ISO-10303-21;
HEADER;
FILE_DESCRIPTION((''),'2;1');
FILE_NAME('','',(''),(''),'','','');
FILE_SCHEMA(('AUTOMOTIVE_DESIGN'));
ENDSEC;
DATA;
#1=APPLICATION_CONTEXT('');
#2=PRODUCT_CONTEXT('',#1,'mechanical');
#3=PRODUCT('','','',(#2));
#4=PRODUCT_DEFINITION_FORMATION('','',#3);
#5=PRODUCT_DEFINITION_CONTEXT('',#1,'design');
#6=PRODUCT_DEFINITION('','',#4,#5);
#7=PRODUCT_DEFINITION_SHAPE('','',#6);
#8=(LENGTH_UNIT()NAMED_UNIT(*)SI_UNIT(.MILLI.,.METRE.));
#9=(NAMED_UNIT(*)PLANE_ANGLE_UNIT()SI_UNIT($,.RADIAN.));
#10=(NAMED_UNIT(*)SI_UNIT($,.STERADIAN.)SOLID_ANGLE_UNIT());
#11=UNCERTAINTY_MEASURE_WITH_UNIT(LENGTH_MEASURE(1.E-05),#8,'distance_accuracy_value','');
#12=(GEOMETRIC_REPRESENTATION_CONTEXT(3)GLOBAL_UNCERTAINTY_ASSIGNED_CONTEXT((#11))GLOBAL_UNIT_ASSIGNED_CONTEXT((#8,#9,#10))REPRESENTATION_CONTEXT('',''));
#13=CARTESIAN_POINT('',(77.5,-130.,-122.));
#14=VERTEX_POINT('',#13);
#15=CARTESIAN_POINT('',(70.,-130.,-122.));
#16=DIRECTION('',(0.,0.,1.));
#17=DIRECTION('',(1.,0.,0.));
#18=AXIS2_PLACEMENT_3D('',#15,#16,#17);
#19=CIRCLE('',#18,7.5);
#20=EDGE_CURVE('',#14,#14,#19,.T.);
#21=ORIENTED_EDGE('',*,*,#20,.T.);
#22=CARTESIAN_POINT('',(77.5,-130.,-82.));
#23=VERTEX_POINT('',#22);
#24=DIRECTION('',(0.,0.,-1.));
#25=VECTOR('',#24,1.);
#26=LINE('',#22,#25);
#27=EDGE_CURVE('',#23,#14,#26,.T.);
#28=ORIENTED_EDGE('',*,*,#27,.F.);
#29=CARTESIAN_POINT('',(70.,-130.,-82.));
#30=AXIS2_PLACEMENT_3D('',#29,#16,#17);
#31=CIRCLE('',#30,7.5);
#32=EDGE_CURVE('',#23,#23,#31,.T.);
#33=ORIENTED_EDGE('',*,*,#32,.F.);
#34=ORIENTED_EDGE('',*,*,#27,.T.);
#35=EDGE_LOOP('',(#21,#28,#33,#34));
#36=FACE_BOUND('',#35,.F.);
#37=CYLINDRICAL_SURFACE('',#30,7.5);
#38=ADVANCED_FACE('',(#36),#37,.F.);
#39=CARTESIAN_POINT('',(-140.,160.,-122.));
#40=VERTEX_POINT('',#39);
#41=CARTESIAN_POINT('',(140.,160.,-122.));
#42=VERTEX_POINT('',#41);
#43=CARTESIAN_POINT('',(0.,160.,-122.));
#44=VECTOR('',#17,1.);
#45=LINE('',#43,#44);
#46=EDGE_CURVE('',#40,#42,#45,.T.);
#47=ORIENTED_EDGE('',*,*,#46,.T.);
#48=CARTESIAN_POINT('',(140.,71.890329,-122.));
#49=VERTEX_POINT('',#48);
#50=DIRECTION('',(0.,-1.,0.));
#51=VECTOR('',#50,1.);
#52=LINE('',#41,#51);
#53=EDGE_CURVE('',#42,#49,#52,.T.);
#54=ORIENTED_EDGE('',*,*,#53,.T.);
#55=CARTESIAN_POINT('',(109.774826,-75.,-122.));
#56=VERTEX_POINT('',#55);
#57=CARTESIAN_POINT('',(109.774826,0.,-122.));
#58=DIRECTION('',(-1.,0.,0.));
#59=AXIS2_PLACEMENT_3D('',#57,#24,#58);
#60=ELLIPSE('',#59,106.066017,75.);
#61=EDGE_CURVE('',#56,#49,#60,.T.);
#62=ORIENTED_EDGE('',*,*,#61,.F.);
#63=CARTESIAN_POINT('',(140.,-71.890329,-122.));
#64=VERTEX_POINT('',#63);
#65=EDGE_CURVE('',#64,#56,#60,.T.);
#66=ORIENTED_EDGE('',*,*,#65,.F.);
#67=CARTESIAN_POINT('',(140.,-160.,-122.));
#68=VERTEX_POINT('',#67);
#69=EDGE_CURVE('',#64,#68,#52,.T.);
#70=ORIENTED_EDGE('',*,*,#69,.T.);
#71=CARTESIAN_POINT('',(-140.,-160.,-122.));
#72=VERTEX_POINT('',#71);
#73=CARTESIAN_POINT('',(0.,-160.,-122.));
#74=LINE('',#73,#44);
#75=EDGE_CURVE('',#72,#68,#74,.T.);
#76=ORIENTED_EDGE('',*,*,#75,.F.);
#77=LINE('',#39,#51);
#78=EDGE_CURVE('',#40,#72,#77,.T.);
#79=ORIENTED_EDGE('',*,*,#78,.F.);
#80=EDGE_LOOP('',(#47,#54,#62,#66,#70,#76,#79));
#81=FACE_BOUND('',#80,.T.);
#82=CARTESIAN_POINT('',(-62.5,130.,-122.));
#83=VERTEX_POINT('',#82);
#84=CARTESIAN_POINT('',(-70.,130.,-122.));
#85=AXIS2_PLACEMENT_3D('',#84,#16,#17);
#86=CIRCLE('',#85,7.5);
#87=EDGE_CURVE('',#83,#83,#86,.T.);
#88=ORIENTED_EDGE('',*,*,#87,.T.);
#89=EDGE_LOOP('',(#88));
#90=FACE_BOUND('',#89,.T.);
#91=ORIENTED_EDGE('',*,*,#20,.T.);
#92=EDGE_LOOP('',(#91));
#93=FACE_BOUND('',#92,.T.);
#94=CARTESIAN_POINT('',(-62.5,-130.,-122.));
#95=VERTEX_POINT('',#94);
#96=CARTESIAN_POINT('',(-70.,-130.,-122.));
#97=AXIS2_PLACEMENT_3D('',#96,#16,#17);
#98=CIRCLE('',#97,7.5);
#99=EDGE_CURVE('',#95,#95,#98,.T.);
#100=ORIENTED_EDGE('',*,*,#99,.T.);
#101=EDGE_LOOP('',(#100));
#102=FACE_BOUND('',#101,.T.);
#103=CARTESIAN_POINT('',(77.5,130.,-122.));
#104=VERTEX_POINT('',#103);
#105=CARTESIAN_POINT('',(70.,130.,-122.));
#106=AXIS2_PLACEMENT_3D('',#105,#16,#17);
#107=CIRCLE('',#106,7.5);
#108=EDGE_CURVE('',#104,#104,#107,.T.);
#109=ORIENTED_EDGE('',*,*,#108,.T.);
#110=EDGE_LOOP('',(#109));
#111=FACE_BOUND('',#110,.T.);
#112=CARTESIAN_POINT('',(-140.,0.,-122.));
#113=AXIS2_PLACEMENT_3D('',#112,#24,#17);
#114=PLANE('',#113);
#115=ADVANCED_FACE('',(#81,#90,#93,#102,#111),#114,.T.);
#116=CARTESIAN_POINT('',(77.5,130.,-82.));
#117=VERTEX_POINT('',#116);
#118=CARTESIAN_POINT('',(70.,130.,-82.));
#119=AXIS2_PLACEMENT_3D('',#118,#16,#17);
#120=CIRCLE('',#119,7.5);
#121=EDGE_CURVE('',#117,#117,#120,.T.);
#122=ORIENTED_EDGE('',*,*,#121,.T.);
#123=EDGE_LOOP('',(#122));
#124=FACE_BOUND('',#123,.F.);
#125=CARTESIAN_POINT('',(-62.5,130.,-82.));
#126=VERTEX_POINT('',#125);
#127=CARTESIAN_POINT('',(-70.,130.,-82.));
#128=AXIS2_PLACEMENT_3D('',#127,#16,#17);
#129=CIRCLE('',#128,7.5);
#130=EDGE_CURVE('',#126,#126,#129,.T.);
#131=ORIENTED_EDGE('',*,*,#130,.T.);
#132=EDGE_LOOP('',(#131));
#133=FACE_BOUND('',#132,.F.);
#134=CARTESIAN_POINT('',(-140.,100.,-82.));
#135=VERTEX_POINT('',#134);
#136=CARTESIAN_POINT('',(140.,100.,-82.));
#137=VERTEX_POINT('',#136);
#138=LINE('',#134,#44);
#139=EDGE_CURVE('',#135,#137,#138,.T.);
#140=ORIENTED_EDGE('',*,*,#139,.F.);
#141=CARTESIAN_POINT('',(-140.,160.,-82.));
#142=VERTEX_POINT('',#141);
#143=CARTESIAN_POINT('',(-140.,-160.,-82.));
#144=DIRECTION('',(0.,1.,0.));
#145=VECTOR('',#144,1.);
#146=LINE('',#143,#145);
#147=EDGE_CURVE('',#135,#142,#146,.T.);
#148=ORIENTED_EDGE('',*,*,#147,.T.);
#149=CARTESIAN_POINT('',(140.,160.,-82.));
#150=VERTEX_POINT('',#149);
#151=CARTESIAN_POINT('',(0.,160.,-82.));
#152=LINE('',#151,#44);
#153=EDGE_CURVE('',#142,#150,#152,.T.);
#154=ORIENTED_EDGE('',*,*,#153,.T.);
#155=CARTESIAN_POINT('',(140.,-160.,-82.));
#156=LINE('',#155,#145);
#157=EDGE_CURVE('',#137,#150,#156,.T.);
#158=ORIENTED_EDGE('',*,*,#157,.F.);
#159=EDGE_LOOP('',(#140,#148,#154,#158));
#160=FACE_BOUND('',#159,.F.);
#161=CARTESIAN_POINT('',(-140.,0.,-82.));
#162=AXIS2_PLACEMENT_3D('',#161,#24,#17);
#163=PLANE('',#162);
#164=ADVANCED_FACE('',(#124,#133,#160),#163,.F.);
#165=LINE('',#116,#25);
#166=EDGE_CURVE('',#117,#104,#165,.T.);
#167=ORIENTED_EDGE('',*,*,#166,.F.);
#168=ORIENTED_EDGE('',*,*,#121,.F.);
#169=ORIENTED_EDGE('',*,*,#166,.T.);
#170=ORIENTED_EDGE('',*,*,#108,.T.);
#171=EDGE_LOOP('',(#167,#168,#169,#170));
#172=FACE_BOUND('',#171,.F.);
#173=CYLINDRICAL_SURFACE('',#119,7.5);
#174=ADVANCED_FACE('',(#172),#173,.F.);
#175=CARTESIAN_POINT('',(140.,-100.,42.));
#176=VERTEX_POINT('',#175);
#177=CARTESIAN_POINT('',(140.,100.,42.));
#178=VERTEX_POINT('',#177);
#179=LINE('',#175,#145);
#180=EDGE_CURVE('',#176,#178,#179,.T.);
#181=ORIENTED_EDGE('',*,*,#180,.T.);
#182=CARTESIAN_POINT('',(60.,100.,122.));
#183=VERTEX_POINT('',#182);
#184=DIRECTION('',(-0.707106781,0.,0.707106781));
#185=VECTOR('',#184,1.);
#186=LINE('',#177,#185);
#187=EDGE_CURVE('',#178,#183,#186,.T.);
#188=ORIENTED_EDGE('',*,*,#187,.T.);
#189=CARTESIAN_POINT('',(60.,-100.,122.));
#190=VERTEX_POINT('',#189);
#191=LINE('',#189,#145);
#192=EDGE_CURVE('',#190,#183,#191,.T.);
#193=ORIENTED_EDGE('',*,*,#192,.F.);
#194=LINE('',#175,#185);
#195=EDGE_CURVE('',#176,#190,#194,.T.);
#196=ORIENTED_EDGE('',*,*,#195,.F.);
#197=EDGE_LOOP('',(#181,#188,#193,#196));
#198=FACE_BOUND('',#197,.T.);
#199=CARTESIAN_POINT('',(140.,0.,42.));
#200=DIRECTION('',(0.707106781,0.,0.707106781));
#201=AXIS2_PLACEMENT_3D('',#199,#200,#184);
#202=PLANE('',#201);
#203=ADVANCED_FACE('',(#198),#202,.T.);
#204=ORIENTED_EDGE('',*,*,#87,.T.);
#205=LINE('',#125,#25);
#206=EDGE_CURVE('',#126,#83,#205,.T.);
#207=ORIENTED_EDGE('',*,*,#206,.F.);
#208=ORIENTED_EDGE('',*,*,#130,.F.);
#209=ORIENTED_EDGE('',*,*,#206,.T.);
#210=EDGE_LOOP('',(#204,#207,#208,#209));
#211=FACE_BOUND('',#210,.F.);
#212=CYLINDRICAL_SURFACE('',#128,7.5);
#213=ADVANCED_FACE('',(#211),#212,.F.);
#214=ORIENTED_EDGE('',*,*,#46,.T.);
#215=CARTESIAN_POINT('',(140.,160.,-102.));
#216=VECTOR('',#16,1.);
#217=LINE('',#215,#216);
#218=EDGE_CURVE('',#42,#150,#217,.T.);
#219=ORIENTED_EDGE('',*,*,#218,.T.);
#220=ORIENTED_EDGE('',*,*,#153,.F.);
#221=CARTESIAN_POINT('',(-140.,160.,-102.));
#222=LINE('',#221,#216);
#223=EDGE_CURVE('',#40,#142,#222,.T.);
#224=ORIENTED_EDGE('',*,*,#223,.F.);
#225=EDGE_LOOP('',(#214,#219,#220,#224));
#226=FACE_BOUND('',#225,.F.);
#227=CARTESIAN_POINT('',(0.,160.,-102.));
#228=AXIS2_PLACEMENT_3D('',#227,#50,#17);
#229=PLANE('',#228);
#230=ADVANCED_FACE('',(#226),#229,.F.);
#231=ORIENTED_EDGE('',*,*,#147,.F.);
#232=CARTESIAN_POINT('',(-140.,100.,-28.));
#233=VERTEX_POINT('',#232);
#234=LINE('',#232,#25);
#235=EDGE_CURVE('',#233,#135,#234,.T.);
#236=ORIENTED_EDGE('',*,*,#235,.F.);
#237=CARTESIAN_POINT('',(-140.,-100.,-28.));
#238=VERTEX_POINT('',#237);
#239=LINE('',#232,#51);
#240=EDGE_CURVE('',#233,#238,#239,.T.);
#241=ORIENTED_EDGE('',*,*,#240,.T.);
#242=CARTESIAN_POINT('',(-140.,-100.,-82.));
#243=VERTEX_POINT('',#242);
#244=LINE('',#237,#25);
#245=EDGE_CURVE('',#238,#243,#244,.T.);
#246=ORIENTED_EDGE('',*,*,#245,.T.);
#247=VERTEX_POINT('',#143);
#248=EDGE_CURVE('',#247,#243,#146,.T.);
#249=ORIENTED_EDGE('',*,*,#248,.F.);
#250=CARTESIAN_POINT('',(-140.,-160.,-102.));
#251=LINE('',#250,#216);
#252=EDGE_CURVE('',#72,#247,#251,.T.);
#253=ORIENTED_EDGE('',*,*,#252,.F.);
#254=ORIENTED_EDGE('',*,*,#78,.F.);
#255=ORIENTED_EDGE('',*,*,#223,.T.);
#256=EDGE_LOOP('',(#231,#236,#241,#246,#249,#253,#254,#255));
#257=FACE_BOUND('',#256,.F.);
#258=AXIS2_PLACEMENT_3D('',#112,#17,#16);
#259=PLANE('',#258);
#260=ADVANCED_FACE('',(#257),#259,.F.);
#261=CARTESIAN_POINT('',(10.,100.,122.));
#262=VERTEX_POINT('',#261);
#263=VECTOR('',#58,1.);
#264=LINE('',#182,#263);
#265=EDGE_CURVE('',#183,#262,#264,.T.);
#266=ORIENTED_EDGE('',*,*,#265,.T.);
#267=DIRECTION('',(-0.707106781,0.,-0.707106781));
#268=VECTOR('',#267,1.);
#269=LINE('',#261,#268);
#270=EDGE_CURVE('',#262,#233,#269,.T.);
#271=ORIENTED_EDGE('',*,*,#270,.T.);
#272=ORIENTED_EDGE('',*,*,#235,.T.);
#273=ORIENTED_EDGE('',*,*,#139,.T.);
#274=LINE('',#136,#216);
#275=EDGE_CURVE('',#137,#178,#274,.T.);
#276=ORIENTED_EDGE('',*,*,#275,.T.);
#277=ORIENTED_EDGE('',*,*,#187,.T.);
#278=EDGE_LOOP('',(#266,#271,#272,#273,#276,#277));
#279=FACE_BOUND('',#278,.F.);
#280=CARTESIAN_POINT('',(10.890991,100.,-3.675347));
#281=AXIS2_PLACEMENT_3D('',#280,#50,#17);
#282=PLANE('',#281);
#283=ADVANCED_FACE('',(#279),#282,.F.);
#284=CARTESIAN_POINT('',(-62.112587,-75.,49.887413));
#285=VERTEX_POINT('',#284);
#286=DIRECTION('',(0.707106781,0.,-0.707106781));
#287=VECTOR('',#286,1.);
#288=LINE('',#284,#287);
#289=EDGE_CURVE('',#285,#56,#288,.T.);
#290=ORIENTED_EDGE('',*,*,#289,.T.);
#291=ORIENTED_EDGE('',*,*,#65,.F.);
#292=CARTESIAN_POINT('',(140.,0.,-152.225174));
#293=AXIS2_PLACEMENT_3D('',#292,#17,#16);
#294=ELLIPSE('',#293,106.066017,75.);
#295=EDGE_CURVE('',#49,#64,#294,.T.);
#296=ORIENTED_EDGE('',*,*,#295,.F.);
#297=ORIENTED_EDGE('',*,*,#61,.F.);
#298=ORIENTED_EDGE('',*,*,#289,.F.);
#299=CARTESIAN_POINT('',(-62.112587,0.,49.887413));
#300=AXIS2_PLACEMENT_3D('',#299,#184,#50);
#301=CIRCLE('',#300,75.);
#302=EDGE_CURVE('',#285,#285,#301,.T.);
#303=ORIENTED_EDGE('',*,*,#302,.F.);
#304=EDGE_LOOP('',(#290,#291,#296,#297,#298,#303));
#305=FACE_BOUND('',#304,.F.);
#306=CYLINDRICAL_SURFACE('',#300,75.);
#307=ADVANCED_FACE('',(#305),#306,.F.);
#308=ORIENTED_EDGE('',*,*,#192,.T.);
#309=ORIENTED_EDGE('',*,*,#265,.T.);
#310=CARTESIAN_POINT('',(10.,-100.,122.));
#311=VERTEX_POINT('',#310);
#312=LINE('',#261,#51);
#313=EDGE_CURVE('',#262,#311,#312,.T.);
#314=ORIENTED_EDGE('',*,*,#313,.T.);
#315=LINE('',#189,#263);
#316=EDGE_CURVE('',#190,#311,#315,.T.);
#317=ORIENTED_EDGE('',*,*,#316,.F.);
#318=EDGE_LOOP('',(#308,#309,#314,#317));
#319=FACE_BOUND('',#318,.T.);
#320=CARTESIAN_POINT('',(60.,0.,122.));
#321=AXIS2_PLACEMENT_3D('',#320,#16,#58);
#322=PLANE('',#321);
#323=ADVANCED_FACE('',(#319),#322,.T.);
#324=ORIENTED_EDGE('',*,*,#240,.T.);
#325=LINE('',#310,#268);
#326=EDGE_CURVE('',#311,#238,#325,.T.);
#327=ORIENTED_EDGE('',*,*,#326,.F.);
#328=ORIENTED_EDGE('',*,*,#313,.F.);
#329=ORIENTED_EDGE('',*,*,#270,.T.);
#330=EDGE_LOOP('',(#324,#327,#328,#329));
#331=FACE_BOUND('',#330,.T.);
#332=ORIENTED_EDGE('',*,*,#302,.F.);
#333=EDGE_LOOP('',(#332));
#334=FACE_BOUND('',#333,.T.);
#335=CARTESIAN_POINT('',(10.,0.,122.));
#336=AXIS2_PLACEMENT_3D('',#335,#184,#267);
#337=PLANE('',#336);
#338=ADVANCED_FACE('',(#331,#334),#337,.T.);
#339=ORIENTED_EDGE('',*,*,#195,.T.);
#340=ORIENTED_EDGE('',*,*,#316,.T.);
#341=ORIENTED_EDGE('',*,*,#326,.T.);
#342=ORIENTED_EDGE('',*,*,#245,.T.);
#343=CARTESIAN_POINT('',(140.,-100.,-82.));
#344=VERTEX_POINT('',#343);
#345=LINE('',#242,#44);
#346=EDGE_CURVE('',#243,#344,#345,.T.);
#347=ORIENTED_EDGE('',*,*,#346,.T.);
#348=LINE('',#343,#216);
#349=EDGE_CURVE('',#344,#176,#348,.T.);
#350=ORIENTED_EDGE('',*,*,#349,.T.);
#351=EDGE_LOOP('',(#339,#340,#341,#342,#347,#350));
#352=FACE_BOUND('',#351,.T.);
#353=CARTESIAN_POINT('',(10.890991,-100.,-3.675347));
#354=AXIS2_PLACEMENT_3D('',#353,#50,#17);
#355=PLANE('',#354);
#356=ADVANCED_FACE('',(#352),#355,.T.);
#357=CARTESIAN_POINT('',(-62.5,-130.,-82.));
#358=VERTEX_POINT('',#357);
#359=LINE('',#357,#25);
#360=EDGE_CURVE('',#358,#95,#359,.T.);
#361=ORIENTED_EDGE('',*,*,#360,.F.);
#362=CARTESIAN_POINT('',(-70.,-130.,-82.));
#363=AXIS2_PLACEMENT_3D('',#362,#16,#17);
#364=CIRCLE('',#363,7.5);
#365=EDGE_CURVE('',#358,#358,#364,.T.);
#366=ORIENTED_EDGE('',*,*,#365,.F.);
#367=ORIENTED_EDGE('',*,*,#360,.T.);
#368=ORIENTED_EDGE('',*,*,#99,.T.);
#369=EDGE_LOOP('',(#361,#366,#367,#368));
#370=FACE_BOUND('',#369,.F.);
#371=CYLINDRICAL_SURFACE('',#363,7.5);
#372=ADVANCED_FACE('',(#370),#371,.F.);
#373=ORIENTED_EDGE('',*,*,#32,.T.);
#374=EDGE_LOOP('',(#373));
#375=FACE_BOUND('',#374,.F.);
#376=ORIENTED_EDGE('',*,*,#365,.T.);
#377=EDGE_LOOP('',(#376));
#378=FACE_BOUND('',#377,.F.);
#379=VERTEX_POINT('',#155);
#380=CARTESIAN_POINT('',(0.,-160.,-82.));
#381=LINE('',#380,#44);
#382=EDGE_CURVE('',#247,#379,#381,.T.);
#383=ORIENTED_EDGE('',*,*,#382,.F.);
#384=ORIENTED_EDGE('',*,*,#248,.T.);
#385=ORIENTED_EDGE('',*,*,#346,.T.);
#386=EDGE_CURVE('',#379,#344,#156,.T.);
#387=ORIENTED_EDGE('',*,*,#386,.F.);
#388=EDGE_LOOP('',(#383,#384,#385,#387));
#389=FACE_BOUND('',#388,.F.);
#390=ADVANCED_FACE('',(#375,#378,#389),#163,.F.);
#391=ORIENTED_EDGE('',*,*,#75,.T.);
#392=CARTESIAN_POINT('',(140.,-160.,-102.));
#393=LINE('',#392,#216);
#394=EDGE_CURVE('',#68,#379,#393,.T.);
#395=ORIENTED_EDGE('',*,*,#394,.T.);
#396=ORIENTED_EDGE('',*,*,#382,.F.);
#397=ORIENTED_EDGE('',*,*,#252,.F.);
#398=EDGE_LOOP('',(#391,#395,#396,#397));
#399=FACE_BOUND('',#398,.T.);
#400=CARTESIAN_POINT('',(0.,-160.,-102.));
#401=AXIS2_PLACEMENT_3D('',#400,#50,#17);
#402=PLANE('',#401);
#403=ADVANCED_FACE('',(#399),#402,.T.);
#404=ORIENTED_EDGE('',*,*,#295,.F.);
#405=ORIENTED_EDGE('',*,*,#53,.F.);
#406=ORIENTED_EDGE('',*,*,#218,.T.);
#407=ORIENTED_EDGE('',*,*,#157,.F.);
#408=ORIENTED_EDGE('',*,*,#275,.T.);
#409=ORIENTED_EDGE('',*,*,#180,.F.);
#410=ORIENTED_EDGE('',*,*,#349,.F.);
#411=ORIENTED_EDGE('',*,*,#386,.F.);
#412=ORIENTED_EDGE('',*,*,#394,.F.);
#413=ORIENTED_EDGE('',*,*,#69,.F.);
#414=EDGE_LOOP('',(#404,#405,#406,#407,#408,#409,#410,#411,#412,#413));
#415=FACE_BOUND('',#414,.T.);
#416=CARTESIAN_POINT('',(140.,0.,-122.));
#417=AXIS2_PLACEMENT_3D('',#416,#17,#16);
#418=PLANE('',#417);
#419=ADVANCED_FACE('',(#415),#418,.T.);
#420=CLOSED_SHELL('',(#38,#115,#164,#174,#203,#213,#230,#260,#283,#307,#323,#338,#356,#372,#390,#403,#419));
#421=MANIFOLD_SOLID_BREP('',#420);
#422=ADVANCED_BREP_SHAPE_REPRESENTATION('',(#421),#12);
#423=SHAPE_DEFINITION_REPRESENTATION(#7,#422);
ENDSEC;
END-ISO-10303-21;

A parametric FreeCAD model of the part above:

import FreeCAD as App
import Part
import Sketcher

V = App.Vector
Q = App.Units.Quantity


def add_polygon(sketch, points):
    """Adds a closed chain of lines whose ends are joined by coincident constraints."""
    first, n = sketch.GeometryCount, len(points)
    for a, b in zip(points, points[1:] + points[:1]):
        sketch.addGeometry(Part.LineSegment(App.Vector(*a, 0), App.Vector(*b, 0)), False)
    for i in range(n):
        sketch.addConstraint(Sketcher.Constraint("Coincident", first + i, 2, first + (i + 1) % n, 1))

doc = App.newDocument("Part")
params = doc.addObject("Spreadsheet::Sheet", "Params")
for row, (alias, value) in enumerate([
    ("sketch1_width", "280 mm"),
    ("sketch1_height", "40 mm"),
    ("pad1_length", "320 mm"),
    ("sketch2_width", "50 mm"),
    ("sketch2_width2", "280 mm"),
    ("sketch2_height", "54 mm"),
    ("sketch2_height2", "124 mm"),
    ("pad2_length", "200 mm"),
    ("sketch3_diameter", "15 mm"),
    ("sketch4_diameter", "150 mm"),
], start=1):
    params.set(f"A{row}", alias)
    params.set(f"B{row}", "=" + value)
    params.setAlias(f"B{row}", alias)

body = doc.addObject("PartDesign::Body", "Body")

# Sketch on XZ plane
sketch1 = body.newObject("Sketcher::SketchObject", "Sketch")
sketch1.AttachmentSupport = (doc.getObject("XZ_Plane"), [""])
sketch1.MapMode = "FlatFace"
add_polygon(sketch1, [(-140, -82), (-140, -122), (140, -122), (140, -82)])  # lines 0-3
sketch1.addConstraint(Sketcher.Constraint("Vertical", 0))
sketch1.addConstraint(Sketcher.Constraint("Horizontal", 1))
sketch1.addConstraint(Sketcher.Constraint("Vertical", 2))
sketch1.addConstraint(Sketcher.Constraint("Horizontal", 3))
sketch1.addConstraint(Sketcher.Constraint("DistanceX", 1, 1, 1, 2, Q("280 mm")))
sketch1.addConstraint(Sketcher.Constraint("DistanceY", 0, 2, 0, 1, Q("40 mm")))
sketch1.addConstraint(Sketcher.Constraint("DistanceX", 0, 2, -1, 1, Q("140 mm")))
sketch1.addConstraint(Sketcher.Constraint("DistanceY", 0, 2, -1, 1, Q("122 mm")))
sketch1.setExpression("Constraints[8]", "Params.sketch1_width")
sketch1.setExpression("Constraints[9]", "Params.sketch1_height")
pad1 = body.newObject("PartDesign::Pad", "Pad")
pad1.Profile = sketch1
pad1.setExpression("Length", "Params.pad1_length")
pad1.Midplane = True

# Sketch on XZ plane
sketch2 = body.newObject("Sketcher::SketchObject", "Sketch001")
sketch2.AttachmentSupport = (doc.getObject("XZ_Plane"), [""])
sketch2.MapMode = "FlatFace"
add_polygon(sketch2, [(60, 122), (10, 122), (-140, -28), (-140, -82), (140, -82), (140, 42)])  # lines 0-5
sketch2.addConstraint(Sketcher.Constraint("Horizontal", 0))
sketch2.addConstraint(Sketcher.Constraint("Vertical", 2))
sketch2.addConstraint(Sketcher.Constraint("Horizontal", 3))
sketch2.addConstraint(Sketcher.Constraint("Vertical", 4))
sketch2.addConstraint(Sketcher.Constraint("Perpendicular", 1, 5))
sketch2.addConstraint(Sketcher.Constraint("DistanceX", 0, 2, 0, 1, Q("50 mm")))
sketch2.addConstraint(Sketcher.Constraint("DistanceX", 3, 1, 3, 2, Q("280 mm")))
sketch2.addConstraint(Sketcher.Constraint("DistanceY", 2, 2, 2, 1, Q("54 mm")))
sketch2.addConstraint(Sketcher.Constraint("DistanceY", 4, 1, 4, 2, Q("124 mm")))
sketch2.addConstraint(Sketcher.Constraint("Angle", 1, Q("-135 deg")))
sketch2.addConstraint(Sketcher.Constraint("DistanceX", -1, 1, 0, 2, Q("10 mm")))
sketch2.addConstraint(Sketcher.Constraint("DistanceY", -1, 1, 0, 2, Q("122 mm")))
sketch2.setExpression("Constraints[11]", "Params.sketch2_width")
sketch2.setExpression("Constraints[12]", "Params.sketch2_width2")
sketch2.setExpression("Constraints[13]", "Params.sketch2_height")
sketch2.setExpression("Constraints[14]", "Params.sketch2_height2")
pad2 = body.newObject("PartDesign::Pad", "Pad001")
pad2.Profile = sketch2
pad2.setExpression("Length", "Params.pad2_length")
pad2.Midplane = True

# Sketch on XY plane
sketch3 = body.newObject("Sketcher::SketchObject", "Sketch002")
sketch3.AttachmentSupport = (doc.getObject("XY_Plane"), [""])
sketch3.MapMode = "FlatFace"
sketch3.AttachmentOffset = App.Placement(V(0, 0, -82), App.Rotation())
sketch3.addGeometry(Part.Circle(V(70, 130, 0), V(0, 0, 1), 8), False)
sketch3.addGeometry(Part.Circle(V(-70, 130, 0), V(0, 0, 1), 8), False)
sketch3.addGeometry(Part.Circle(V(-70, -130, 0), V(0, 0, 1), 8), False)
sketch3.addGeometry(Part.Circle(V(70, -130, 0), V(0, 0, 1), 8), False)
sketch3.addConstraint(Sketcher.Constraint("Equal", 0, 1))
sketch3.addConstraint(Sketcher.Constraint("Equal", 1, 2))
sketch3.addConstraint(Sketcher.Constraint("Equal", 2, 3))
sketch3.addConstraint(Sketcher.Constraint("Symmetric", 0, 3, 2, 3, -1, 1))
sketch3.addConstraint(Sketcher.Constraint("Symmetric", 1, 3, 3, 3, -1, 1))
sketch3.addConstraint(Sketcher.Constraint("Symmetric", 0, 3, 1, 3, -2))
sketch3.addConstraint(Sketcher.Constraint("Diameter", 0, Q("15 mm")))
sketch3.addConstraint(Sketcher.Constraint("DistanceX", -1, 1, 0, 3, Q("70 mm")))
sketch3.addConstraint(Sketcher.Constraint("DistanceY", -1, 1, 0, 3, Q("130 mm")))
sketch3.setExpression("Constraints[6]", "Params.sketch3_diameter")
pocket1 = body.newObject("PartDesign::Pocket", "Pocket")
pocket1.Profile = sketch3
pocket1.Type = "ThroughAll"

# Sketch on an angled plane
sketch4 = body.newObject("Sketcher::SketchObject", "Sketch003")
sketch4.Placement = App.Placement(V(-56, 0, 56), App.Rotation(V(0, -1, 0), V(0.707106781, 0, 0.707106781), V(-0.707106781, 0, 0.707106781), "ZXY"))
sketch4.addGeometry(Part.Circle(V(0, -9, 0), V(0, 0, 1), 75), False)
sketch4.addConstraint(Sketcher.Constraint("PointOnObject", 0, 3, -2))
sketch4.addConstraint(Sketcher.Constraint("Diameter", 0, Q("150 mm")))
sketch4.addConstraint(Sketcher.Constraint("DistanceY", 0, 3, -1, 1, Q("8.644504 mm")))
sketch4.setExpression("Constraints[1]", "Params.sketch4_diameter")
pocket2 = body.newObject("PartDesign::Pocket", "Pocket001")
pocket2.Profile = sketch4
pocket2.Type = "ThroughAll"

doc.recompute()
